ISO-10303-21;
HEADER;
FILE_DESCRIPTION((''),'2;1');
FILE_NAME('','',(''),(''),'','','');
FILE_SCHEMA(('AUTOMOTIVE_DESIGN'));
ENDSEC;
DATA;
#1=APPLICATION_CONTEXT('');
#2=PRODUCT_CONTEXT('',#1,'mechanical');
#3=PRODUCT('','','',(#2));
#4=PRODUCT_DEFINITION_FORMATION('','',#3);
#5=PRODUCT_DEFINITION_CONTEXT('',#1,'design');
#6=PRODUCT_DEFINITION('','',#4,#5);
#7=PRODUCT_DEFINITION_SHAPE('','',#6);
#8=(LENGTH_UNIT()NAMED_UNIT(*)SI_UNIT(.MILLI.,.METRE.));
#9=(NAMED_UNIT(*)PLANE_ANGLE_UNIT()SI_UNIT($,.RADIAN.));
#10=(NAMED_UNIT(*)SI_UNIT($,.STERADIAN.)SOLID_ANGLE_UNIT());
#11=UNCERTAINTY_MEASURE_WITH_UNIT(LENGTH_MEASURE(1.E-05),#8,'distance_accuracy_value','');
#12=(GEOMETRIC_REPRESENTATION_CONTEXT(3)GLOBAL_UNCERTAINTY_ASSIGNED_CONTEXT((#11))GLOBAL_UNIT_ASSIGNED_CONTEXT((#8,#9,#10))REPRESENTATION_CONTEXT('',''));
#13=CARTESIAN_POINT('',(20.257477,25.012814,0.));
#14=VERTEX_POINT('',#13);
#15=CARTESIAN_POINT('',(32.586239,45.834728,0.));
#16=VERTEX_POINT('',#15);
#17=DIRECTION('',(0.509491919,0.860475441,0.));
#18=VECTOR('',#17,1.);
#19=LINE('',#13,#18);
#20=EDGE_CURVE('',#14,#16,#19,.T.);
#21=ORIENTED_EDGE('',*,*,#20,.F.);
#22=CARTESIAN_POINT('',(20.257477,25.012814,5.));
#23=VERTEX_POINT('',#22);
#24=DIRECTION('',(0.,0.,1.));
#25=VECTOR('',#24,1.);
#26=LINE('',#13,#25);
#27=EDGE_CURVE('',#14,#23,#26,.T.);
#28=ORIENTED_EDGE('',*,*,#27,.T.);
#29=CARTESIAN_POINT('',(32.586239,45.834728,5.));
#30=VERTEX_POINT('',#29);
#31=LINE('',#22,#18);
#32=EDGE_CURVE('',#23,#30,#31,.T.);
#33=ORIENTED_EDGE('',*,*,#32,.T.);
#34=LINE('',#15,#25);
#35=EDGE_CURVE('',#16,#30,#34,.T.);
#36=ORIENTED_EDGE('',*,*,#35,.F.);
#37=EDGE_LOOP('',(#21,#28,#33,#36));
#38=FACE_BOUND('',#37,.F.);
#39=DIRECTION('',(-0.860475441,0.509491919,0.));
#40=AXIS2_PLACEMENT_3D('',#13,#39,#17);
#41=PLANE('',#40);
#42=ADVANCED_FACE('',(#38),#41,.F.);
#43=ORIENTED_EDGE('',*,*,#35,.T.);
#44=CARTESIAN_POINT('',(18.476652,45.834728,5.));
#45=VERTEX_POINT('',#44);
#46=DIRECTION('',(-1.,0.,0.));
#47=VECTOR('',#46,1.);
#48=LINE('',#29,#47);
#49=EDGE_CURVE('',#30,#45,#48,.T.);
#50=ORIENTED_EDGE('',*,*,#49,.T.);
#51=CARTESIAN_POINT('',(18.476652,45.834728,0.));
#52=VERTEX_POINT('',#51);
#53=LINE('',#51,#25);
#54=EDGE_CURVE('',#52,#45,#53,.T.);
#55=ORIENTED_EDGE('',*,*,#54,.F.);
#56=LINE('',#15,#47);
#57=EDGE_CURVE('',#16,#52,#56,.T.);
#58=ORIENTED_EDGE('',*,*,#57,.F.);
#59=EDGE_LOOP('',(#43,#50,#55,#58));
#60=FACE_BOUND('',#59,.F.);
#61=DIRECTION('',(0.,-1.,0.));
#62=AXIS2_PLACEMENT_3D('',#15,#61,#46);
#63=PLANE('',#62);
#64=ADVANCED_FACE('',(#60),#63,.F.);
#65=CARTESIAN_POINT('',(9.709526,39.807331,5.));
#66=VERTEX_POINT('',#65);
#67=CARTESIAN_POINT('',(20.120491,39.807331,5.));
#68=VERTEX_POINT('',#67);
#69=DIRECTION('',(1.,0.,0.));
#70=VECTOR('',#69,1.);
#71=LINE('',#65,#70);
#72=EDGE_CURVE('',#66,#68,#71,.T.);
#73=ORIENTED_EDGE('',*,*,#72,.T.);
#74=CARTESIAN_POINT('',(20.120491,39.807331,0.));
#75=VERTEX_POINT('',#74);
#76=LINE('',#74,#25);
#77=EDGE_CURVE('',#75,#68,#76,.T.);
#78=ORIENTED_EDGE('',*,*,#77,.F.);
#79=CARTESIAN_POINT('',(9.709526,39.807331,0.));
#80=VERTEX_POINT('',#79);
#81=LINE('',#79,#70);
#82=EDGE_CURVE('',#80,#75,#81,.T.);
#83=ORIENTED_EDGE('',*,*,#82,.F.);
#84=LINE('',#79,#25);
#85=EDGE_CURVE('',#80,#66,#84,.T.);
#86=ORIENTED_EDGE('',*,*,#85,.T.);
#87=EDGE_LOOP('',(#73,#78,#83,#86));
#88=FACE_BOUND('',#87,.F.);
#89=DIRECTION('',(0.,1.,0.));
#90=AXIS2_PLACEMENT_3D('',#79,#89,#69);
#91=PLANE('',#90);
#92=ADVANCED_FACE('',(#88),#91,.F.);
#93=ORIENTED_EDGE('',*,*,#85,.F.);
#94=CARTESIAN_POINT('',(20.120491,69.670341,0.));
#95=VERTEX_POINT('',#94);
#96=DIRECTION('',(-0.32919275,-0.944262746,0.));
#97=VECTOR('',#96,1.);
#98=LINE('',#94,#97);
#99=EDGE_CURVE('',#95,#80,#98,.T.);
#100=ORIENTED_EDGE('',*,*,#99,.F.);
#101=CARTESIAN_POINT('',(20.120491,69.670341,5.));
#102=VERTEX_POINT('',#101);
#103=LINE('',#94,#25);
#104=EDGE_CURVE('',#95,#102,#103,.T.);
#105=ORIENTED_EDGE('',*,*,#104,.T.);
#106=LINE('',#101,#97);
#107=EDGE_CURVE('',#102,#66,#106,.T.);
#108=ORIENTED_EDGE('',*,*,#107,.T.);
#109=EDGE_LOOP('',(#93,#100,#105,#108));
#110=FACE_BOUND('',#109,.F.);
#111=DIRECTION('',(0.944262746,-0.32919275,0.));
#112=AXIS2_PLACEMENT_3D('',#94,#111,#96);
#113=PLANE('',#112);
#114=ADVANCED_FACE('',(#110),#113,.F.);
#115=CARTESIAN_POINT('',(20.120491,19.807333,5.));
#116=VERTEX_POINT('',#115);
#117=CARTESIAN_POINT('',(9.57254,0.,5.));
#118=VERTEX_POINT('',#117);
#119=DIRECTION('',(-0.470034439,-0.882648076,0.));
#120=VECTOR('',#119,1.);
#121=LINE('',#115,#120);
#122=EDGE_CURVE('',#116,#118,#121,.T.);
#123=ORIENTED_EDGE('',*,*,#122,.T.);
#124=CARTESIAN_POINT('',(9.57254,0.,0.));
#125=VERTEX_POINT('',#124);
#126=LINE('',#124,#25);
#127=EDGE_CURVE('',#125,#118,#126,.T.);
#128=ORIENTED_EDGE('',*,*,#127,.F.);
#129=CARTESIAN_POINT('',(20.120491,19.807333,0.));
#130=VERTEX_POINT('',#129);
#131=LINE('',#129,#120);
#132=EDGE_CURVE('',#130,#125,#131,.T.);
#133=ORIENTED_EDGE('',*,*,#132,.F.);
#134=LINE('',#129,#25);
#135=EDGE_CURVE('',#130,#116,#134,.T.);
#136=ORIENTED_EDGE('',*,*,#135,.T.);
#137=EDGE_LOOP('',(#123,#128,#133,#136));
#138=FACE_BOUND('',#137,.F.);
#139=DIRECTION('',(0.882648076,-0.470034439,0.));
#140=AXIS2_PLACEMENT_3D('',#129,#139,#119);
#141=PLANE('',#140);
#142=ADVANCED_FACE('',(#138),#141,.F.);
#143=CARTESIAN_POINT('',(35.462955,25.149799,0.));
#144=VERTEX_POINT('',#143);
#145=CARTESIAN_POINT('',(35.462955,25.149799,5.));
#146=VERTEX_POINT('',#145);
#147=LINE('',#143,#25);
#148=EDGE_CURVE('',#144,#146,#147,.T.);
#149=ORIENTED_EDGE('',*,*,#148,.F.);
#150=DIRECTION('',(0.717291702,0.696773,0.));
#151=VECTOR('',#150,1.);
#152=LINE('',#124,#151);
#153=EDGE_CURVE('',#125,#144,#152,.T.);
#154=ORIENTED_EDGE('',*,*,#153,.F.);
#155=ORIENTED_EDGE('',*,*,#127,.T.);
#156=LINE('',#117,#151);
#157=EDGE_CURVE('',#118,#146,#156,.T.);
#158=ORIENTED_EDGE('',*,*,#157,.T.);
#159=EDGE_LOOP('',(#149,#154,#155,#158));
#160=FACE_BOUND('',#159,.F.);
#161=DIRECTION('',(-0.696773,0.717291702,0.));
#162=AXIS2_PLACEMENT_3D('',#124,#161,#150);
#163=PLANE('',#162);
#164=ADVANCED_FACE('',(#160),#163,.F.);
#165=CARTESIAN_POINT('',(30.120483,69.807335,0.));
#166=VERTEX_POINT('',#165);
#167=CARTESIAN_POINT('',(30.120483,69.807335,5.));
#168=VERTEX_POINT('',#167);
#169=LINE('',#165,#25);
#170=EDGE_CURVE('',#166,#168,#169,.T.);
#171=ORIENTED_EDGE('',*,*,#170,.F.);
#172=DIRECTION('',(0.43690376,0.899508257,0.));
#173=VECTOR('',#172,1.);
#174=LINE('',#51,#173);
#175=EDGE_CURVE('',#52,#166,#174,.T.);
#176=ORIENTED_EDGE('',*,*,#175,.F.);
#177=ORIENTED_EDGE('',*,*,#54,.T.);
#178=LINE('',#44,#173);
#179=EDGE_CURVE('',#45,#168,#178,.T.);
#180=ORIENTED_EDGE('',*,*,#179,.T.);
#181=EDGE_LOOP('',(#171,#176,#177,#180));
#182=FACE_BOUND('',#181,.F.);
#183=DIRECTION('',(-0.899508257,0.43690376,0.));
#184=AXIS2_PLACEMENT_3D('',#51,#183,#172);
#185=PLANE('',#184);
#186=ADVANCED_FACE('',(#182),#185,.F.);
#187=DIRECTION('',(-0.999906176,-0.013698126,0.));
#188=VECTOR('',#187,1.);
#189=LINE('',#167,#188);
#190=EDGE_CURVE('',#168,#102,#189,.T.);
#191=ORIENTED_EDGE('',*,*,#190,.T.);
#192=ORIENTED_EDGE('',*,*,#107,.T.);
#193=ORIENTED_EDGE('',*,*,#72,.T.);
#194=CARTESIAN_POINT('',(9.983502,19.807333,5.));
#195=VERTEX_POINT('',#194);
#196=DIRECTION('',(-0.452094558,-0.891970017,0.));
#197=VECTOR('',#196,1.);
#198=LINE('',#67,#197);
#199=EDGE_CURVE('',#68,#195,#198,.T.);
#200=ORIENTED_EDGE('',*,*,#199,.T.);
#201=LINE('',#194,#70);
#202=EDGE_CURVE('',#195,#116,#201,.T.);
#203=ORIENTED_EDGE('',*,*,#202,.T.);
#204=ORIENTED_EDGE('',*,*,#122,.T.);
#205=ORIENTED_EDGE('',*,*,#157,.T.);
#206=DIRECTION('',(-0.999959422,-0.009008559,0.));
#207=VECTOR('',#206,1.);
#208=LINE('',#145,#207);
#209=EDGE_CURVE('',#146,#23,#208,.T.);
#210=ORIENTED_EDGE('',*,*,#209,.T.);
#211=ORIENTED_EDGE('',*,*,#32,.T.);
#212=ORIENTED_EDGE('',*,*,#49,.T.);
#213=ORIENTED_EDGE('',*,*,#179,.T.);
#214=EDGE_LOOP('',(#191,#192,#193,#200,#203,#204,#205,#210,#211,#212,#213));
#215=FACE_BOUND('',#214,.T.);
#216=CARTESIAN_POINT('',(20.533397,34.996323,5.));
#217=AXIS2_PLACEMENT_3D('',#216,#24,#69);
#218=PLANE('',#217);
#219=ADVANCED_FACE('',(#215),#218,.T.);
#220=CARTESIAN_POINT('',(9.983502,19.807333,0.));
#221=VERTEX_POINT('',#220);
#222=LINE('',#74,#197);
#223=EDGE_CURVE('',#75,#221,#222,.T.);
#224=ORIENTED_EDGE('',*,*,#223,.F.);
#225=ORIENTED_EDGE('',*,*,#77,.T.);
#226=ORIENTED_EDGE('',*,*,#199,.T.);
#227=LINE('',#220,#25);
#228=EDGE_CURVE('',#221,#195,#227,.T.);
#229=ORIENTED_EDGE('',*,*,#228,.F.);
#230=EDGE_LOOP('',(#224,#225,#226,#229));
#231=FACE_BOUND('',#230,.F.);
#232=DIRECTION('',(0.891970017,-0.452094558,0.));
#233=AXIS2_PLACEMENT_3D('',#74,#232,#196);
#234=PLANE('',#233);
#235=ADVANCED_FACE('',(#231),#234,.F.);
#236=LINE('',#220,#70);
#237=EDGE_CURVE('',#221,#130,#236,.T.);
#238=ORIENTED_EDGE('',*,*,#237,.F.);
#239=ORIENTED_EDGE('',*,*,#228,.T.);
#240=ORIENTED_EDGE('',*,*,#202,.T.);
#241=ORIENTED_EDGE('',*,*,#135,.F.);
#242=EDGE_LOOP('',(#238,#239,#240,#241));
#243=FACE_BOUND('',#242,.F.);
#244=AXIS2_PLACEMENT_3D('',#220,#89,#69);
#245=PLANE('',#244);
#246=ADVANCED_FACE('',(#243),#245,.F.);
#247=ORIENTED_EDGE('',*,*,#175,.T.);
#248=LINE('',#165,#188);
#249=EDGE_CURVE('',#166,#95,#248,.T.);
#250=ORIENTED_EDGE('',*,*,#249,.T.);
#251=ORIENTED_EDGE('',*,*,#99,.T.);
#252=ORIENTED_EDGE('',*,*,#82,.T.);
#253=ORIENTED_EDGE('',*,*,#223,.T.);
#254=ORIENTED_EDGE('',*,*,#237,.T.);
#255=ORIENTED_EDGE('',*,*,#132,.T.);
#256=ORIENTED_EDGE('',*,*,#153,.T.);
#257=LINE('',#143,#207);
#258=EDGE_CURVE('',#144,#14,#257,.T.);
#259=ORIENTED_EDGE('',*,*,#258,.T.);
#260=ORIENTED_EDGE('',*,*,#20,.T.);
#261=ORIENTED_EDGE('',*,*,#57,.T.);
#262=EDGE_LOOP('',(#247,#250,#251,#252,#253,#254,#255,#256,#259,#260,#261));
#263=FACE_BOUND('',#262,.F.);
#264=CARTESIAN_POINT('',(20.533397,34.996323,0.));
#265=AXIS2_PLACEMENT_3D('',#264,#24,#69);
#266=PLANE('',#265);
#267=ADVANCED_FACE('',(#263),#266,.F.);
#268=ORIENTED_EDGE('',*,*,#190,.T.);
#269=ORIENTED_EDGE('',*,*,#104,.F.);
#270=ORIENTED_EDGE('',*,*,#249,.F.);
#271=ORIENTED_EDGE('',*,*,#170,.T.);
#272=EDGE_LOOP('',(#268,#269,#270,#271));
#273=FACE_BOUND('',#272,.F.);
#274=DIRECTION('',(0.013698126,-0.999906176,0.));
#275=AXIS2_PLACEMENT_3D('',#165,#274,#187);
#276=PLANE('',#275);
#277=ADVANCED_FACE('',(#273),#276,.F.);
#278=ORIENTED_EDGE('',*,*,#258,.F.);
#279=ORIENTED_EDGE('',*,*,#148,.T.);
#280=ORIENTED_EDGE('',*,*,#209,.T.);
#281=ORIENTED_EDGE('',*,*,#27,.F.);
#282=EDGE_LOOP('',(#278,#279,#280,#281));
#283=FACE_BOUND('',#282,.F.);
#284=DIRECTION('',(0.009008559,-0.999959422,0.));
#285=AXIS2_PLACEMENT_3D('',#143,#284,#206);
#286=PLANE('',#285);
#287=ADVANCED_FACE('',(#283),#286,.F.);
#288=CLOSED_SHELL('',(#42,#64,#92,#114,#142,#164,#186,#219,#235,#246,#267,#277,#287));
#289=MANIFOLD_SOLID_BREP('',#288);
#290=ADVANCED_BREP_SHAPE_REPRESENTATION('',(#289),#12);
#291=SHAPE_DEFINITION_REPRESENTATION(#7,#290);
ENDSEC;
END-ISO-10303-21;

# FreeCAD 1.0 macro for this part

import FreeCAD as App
import Part
import Sketcher

V = App.Vector
Q = App.Units.Quantity


def add_polygon(sketch, points):
    """Adds a closed chain of lines whose ends are joined by coincident constraints."""
    first, n = sketch.GeometryCount, len(points)
    for a, b in zip(points, points[1:] + points[:1]):
        sketch.addGeometry(Part.LineSegment(App.Vector(*a, 0), App.Vector(*b, 0)), False)
    for i in range(n):
        sketch.addConstraint(Sketcher.Constraint("Coincident", first + i, 2, first + (i + 1) % n, 1))

doc = App.newDocument("Part")
body = doc.addObject("PartDesign::Body", "Body")

sketch1 = doc.addObject("Sketcher::SketchObject", "Sketch")
body.addObject(sketch1)
sketch1.AttachmentSupport = (doc.XY_Plane, [""])
sketch1.MapMode = "FlatFace"
add_polygon(sketch1, [(20, 70), (10, 40), (20, 40), (10, 20), (20, 20), (10, 0), (35, 25), (20, 25), (33, 46), (18, 46), (30, 70)])
sketch1.addConstraint(Sketcher.Constraint("Horizontal", 1))
sketch1.addConstraint(Sketcher.Constraint("Horizontal", 3))
sketch1.addConstraint(Sketcher.Constraint("Horizontal", 8))
sketch1.addConstraint(Sketcher.Constraint("PointOnObject", 4, 2, -1))
sketch1.addConstraint(Sketcher.Constraint("Vertical", 1, 2, 3, 2))
sketch1.addConstraint(Sketcher.Constraint("Vertical", 3, 2, 10, 2))
sketch1.addConstraint(Sketcher.Constraint("Angle", 7, Q("59.370007 deg")))
sketch1.addConstraint(Sketcher.Constraint("DistanceX", 3, 1, 3, 2, 10.136989))
sketch1.addConstraint(Sketcher.Constraint("DistanceY", -1, 1, 5, 2, 25.149799))
sketch1.addConstraint(Sketcher.Constraint("Distance", 5, 36.094681))
sketch1.addConstraint(Sketcher.Constraint("Distance", 7, 24.19815))
sketch1.addConstraint(Sketcher.Constraint("Distance", 9, 26.650791))
sketch1.addConstraint(Sketcher.Constraint("Distance", 10, 10.00093))
sketch1.addConstraint(Sketcher.Constraint("DistanceX", 1, 1, 1, 2, 10.410965))
sketch1.addConstraint(Sketcher.Constraint("DistanceX", 8, 2, 8, 1, 14.109587))
sketch1.addConstraint(Sketcher.Constraint("DistanceY", -1, 1, 0, 2, 39.807331))
sketch1.addConstraint(Sketcher.Constraint("DistanceX", -1, 1, 1, 2, 20.120491))
sketch1.addConstraint(Sketcher.Constraint("DistanceX", -1, 1, 4, 2, 9.57254))
sketch1.addConstraint(Sketcher.Constraint("DistanceX", -1, 1, 7, 2, 32.586239))
sketch1.addConstraint(Sketcher.Constraint("DistanceY", -1, 1, 10, 2, 69.670341))
sketch1.addConstraint(Sketcher.Constraint("DistanceY", 3, 2, 6, 2, 5.205481))
sketch1.addConstraint(Sketcher.Constraint("DistanceY", 5, 2, 7, 2, 20.684929))
pad1 = doc.addObject("PartDesign::Pad", "Pad")
body.addObject(pad1)
pad1.Profile = sketch1
pad1.Length = 5

doc.recompute()
